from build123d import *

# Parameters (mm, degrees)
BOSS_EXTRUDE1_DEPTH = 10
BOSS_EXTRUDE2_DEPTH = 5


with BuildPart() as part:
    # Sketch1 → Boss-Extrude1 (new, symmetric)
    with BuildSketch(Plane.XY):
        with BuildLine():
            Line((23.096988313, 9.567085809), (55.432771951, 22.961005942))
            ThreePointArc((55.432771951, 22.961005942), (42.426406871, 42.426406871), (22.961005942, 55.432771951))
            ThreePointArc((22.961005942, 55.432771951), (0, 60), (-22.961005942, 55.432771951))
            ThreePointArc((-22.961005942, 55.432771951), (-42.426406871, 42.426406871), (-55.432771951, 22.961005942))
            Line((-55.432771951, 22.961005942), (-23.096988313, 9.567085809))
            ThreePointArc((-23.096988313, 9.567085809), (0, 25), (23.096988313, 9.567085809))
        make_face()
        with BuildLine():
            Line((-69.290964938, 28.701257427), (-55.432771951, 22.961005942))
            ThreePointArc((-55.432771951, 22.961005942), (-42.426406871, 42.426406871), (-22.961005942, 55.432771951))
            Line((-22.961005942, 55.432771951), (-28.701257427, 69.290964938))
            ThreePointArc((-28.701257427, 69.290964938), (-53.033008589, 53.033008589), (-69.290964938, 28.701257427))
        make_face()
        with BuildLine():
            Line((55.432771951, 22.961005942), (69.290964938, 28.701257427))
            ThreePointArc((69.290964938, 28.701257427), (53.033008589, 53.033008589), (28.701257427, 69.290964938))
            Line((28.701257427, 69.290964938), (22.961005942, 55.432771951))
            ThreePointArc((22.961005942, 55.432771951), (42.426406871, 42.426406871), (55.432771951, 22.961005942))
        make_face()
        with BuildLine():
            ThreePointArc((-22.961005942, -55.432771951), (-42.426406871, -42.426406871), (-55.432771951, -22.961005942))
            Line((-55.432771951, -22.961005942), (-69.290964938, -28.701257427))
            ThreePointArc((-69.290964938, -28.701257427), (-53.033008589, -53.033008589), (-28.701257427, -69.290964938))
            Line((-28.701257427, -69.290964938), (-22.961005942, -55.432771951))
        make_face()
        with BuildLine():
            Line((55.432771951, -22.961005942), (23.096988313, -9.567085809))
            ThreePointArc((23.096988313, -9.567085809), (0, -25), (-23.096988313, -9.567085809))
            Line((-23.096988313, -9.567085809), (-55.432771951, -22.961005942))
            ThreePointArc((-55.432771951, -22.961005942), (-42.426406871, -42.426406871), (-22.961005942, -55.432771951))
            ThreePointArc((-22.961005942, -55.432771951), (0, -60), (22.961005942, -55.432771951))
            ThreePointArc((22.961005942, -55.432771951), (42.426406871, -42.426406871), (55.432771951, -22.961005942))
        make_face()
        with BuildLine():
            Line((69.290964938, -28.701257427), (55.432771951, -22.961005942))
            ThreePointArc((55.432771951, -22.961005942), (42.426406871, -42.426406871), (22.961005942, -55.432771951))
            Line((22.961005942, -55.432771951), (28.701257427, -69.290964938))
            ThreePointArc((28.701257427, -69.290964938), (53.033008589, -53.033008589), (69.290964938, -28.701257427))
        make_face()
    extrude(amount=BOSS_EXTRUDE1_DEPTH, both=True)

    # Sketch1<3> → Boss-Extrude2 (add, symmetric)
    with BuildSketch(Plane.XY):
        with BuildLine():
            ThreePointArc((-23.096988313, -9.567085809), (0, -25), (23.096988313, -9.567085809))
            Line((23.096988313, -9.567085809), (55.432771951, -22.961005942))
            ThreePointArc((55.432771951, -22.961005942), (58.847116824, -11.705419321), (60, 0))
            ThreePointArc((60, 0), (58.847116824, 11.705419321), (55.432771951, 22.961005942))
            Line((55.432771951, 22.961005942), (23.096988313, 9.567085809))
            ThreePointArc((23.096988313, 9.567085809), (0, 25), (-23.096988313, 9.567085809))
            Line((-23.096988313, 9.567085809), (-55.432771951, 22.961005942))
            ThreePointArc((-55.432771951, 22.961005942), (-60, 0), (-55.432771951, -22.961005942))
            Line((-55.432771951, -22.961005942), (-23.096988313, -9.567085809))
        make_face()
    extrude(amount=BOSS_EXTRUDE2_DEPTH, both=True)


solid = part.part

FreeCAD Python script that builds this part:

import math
import FreeCAD as App
import Part
import Sketcher
Q = App.Units.Quantity

doc = App.newDocument("Part")
body = doc.addObject("PartDesign::Body", "Body")
body.AllowCompound = True

# Sketch on XY plane
sketch1 = body.newObject("Sketcher::SketchObject", "Sketch")
sketch1.AttachmentSupport = (doc.getObject("XY_Plane"), [""])
sketch1.MapMode = "FlatFace"
sketch1.addGeometry(Part.LineSegment(App.Vector(23, 10, 0), App.Vector(55, 23, 0)), False)
sketch1.addGeometry(Part.LineSegment(App.Vector(55, 23, 0), App.Vector(69, 29, 0)), False)
sketch1.addGeometry(Part.ArcOfCircle(Part.Circle(App.Vector(0, 0, 0), App.Vector(0, 0, 1), 75), math.radians(22), math.radians(68)), False)
sketch1.addGeometry(Part.LineSegment(App.Vector(29, 69, 0), App.Vector(23, 55, 0)), False)
sketch1.addGeometry(Part.ArcOfCircle(Part.Circle(App.Vector(0, 0, 0), App.Vector(0, 0, 1), 60), math.radians(68), math.radians(112)), False)
sketch1.addGeometry(Part.LineSegment(App.Vector(-23, 55, 0), App.Vector(-29, 69, 0)), False)
sketch1.addGeometry(Part.ArcOfCircle(Part.Circle(App.Vector(0, 0, 0), App.Vector(0, 0, 1), 75), math.radians(112), math.radians(158)), False)
sketch1.addGeometry(Part.LineSegment(App.Vector(-69, 29, 0), App.Vector(-55, 23, 0)), False)
sketch1.addGeometry(Part.LineSegment(App.Vector(-55, 23, 0), App.Vector(-23, 10, 0)), False)
sketch1.addGeometry(Part.ArcOfCircle(Part.Circle(App.Vector(0, 0, 0), App.Vector(0, 0, 1), 25), math.radians(22), math.radians(158)), False)
sketch1.addGeometry(Part.LineSegment(App.Vector(-55, -23, 0), App.Vector(-69, -29, 0)), False)
sketch1.addGeometry(Part.ArcOfCircle(Part.Circle(App.Vector(0, 0, 0), App.Vector(0, 0, 1), 75), math.radians(-158), math.radians(-112)), False)
sketch1.addGeometry(Part.LineSegment(App.Vector(-29, -69, 0), App.Vector(-23, -55, 0)), False)
sketch1.addGeometry(Part.ArcOfCircle(Part.Circle(App.Vector(0, 0, 0), App.Vector(0, 0, 1), 60), math.radians(-112), math.radians(-68)), False)
sketch1.addGeometry(Part.LineSegment(App.Vector(23, -55, 0), App.Vector(29, -69, 0)), False)
sketch1.addGeometry(Part.ArcOfCircle(Part.Circle(App.Vector(0, 0, 0), App.Vector(0, 0, 1), 75), math.radians(-68), math.radians(-22)), False)
sketch1.addGeometry(Part.LineSegment(App.Vector(69, -29, 0), App.Vector(55, -23, 0)), False)
sketch1.addGeometry(Part.LineSegment(App.Vector(55, -23, 0), App.Vector(23, -10, 0)), False)
sketch1.addGeometry(Part.ArcOfCircle(Part.Circle(App.Vector(0, 0, 0), App.Vector(0, 0, 1), 25), math.radians(-158), math.radians(-22)), False)
sketch1.addGeometry(Part.LineSegment(App.Vector(-23, -10, 0), App.Vector(-55, -23, 0)), False)
sketch1.addConstraint(Sketcher.Constraint("Coincident", 0, 2, 1, 1))
sketch1.addConstraint(Sketcher.Constraint("Coincident", 1, 2, 2, 1))
sketch1.addConstraint(Sketcher.Constraint("Coincident", 2, 2, 3, 1))
sketch1.addConstraint(Sketcher.Constraint("Coincident", 3, 2, 4, 1))
sketch1.addConstraint(Sketcher.Constraint("Coincident", 4, 2, 5, 1))
sketch1.addConstraint(Sketcher.Constraint("Coincident", 5, 2, 6, 1))
sketch1.addConstraint(Sketcher.Constraint("Coincident", 6, 2, 7, 1))
sketch1.addConstraint(Sketcher.Constraint("Coincident", 7, 2, 8, 1))
sketch1.addConstraint(Sketcher.Constraint("Coincident", 8, 2, 9, 2))
sketch1.addConstraint(Sketcher.Constraint("Coincident", 9, 1, 0, 1))
sketch1.addConstraint(Sketcher.Constraint("Coincident", 10, 2, 11, 1))
sketch1.addConstraint(Sketcher.Constraint("Coincident", 11, 2, 12, 1))
sketch1.addConstraint(Sketcher.Constraint("Coincident", 12, 2, 13, 1))
sketch1.addConstraint(Sketcher.Constraint("Coincident", 13, 2, 14, 1))
sketch1.addConstraint(Sketcher.Constraint("Coincident", 14, 2, 15, 1))
sketch1.addConstraint(Sketcher.Constraint("Coincident", 15, 2, 16, 1))
sketch1.addConstraint(Sketcher.Constraint("Coincident", 16, 2, 17, 1))
sketch1.addConstraint(Sketcher.Constraint("Coincident", 17, 2, 18, 2))
sketch1.addConstraint(Sketcher.Constraint("Coincident", 18, 1, 19, 1))
sketch1.addConstraint(Sketcher.Constraint("Coincident", 19, 2, 10, 1))
sketch1.addConstraint(Sketcher.Constraint("Coincident", 2, 3, -1, 1))
sketch1.addConstraint(Sketcher.Constraint("Coincident", 4, 3, -1, 1))
sketch1.addConstraint(Sketcher.Constraint("Coincident", 6, 3, -1, 1))
sketch1.addConstraint(Sketcher.Constraint("Coincident", 9, 3, -1, 1))
sketch1.addConstraint(Sketcher.Constraint("Coincident", 11, 3, -1, 1))
sketch1.addConstraint(Sketcher.Constraint("Coincident", 13, 3, -1, 1))
sketch1.addConstraint(Sketcher.Constraint("Coincident", 15, 3, -1, 1))
sketch1.addConstraint(Sketcher.Constraint("Coincident", 18, 3, -1, 1))
sketch1.addConstraint(Sketcher.Constraint("Equal", 2, 6))
sketch1.addConstraint(Sketcher.Constraint("Equal", 6, 11))
sketch1.addConstraint(Sketcher.Constraint("Equal", 4, 13))
sketch1.addConstraint(Sketcher.Constraint("Equal", 11, 15))
sketch1.addConstraint(Sketcher.Constraint("Equal", 9, 18))
sketch1.addConstraint(Sketcher.Constraint("Symmetric", 7, 2, 16, 2, -1, 1))
sketch1.addConstraint(Sketcher.Constraint("Symmetric", 0, 2, 19, 2, -1, 1))
sketch1.addConstraint(Sketcher.Constraint("Symmetric", 0, 2, 7, 2, -2))
sketch1.addConstraint(Sketcher.Constraint("Parallel", 0, 1))
sketch1.addConstraint(Sketcher.Constraint("Perpendicular", 1, 5))
sketch1.addConstraint(Sketcher.Constraint("Perpendicular", 3, 7))
sketch1.addConstraint(Sketcher.Constraint("Parallel", 7, 8))
sketch1.addConstraint(Sketcher.Constraint("Perpendicular", 5, 10))
sketch1.addConstraint(Sketcher.Constraint("Perpendicular", 8, 12))
sketch1.addConstraint(Sketcher.Constraint("Perpendicular", 10, 14))
sketch1.addConstraint(Sketcher.Constraint("Perpendicular", 12, 16))
sketch1.addConstraint(Sketcher.Constraint("Parallel", 16, 17))
sketch1.addConstraint(Sketcher.Constraint("Perpendicular", 14, 19))
sketch1.addConstraint(Sketcher.Constraint("Horizontal", 3, 2, 4, 2))
sketch1.addConstraint(Sketcher.Constraint("Horizontal", 2, 2, 5, 2))
sketch1.addConstraint(Sketcher.Constraint("Horizontal", 12, 2, 13, 2))
sketch1.addConstraint(Sketcher.Constraint("Vertical", 5, 2, 11, 2))
sketch1.addConstraint(Sketcher.Constraint("Equal", 1, 3))
sketch1.addConstraint(Sketcher.Constraint("Radius", 2, Q("75 mm")))
sketch1.addConstraint(Sketcher.Constraint("Radius", 4, Q("60 mm")))
sketch1.addConstraint(Sketcher.Constraint("Radius", 9, Q("25 mm")))
sketch1.addConstraint(Sketcher.Constraint("Angle", 0, Q("22.5 deg")))
sketch1.addConstraint(Sketcher.Constraint("DistanceX", -1, 1, 0, 2, Q("55.432772 mm")))
sketch1.addConstraint(Sketcher.Constraint("DistanceY", -1, 1, 3, 2, Q("55.432772 mm")))
pad1 = body.newObject("PartDesign::Pad", "Pad")
pad1.Profile = sketch1
pad1.Length = 20
pad1.Midplane = True

# Sketch on XY plane
sketch2 = body.newObject("Sketcher::SketchObject", "Sketch001")
sketch2.AttachmentSupport = (doc.getObject("XY_Plane"), [""])
sketch2.MapMode = "FlatFace"
sketch2.addGeometry(Part.ArcOfCircle(Part.Circle(App.Vector(0, 0, 0), App.Vector(0, 0, 1), 25), math.radians(-158), math.radians(-22)), False)
sketch2.addGeometry(Part.LineSegment(App.Vector(23, -10, 0), App.Vector(55, -23, 0)), False)
sketch2.addGeometry(Part.ArcOfCircle(Part.Circle(App.Vector(0, 0, 0), App.Vector(0, 0, 1), 60), math.radians(-22), math.radians(0)), False)
sketch2.addGeometry(Part.ArcOfCircle(Part.Circle(App.Vector(0, 0, 0), App.Vector(0, 0, 1), 60), math.radians(0), math.radians(22)), False)
sketch2.addGeometry(Part.LineSegment(App.Vector(55, 23, 0), App.Vector(23, 10, 0)), False)
sketch2.addGeometry(Part.ArcOfCircle(Part.Circle(App.Vector(0, 0, 0), App.Vector(0, 0, 1), 25), math.radians(22), math.radians(158)), False)
sketch2.addGeometry(Part.LineSegment(App.Vector(-23, 10, 0), App.Vector(-55, 23, 0)), False)
sketch2.addGeometry(Part.ArcOfCircle(Part.Circle(App.Vector(0, 0, 0), App.Vector(0, 0, 1), 60), math.radians(158), math.radians(202)), False)
sketch2.addGeometry(Part.LineSegment(App.Vector(-55, -23, 0), App.Vector(-23, -10, 0)), False)
sketch2.addConstraint(Sketcher.Constraint("Coincident", 0, 2, 1, 1))
sketch2.addConstraint(Sketcher.Constraint("Coincident", 1, 2, 2, 1))
sketch2.addConstraint(Sketcher.Constraint("Tangent", 2, 2, 3, 1))
sketch2.addConstraint(Sketcher.Constraint("Coincident", 3, 2, 4, 1))
sketch2.addConstraint(Sketcher.Constraint("Coincident", 4, 2, 5, 1))
sketch2.addConstraint(Sketcher.Constraint("Coincident", 5, 2, 6, 1))
sketch2.addConstraint(Sketcher.Constraint("Coincident", 6, 2, 7, 1))
sketch2.addConstraint(Sketcher.Constraint("Coincident", 7, 2, 8, 1))
sketch2.addConstraint(Sketcher.Constraint("Coincident", 8, 2, 0, 1))
sketch2.addConstraint(Sketcher.Constraint("Coincident", 0, 3, -1, 1))
sketch2.addConstraint(Sketcher.Constraint("Coincident", 2, 3, -1, 1))
sketch2.addConstraint(Sketcher.Constraint("Coincident", 5, 3, -1, 1))
sketch2.addConstraint(Sketcher.Constraint("Coincident", 7, 3, -1, 1))
sketch2.addConstraint(Sketcher.Constraint("Equal", 2, 3))
sketch2.addConstraint(Sketcher.Constraint("Equal", 0, 5))
sketch2.addConstraint(Sketcher.Constraint("Equal", 3, 7))
sketch2.addConstraint(Sketcher.Constraint("PointOnObject", 2, 2, -1))
sketch2.addConstraint(Sketcher.Constraint("Parallel", 1, 6))
sketch2.addConstraint(Sketcher.Constraint("Parallel", 4, 8))
sketch2.addConstraint(Sketcher.Constraint("Horizontal", 4, 2, 5, 2))
sketch2.addConstraint(Sketcher.Constraint("Horizontal", 3, 2, 6, 2))
sketch2.addConstraint(Sketcher.Constraint("Horizontal", 1, 2, 7, 2))
sketch2.addConstraint(Sketcher.Constraint("Vertical", 1, 2, 3, 2))
sketch2.addConstraint(Sketcher.Constraint("Radius", 0, Q("25 mm")))
sketch2.addConstraint(Sketcher.Constraint("Radius", 2, Q("60 mm")))
sketch2.addConstraint(Sketcher.Constraint("Angle", 1, Q("-22.5 deg")))
sketch2.addConstraint(Sketcher.Constraint("DistanceX", -1, 1, 0, 2, Q("23.096988 mm")))
pad2 = body.newObject("PartDesign::Pad", "Pad001")
pad2.Profile = sketch2
pad2.Length = 10
pad2.Midplane = True

doc.recompute()
